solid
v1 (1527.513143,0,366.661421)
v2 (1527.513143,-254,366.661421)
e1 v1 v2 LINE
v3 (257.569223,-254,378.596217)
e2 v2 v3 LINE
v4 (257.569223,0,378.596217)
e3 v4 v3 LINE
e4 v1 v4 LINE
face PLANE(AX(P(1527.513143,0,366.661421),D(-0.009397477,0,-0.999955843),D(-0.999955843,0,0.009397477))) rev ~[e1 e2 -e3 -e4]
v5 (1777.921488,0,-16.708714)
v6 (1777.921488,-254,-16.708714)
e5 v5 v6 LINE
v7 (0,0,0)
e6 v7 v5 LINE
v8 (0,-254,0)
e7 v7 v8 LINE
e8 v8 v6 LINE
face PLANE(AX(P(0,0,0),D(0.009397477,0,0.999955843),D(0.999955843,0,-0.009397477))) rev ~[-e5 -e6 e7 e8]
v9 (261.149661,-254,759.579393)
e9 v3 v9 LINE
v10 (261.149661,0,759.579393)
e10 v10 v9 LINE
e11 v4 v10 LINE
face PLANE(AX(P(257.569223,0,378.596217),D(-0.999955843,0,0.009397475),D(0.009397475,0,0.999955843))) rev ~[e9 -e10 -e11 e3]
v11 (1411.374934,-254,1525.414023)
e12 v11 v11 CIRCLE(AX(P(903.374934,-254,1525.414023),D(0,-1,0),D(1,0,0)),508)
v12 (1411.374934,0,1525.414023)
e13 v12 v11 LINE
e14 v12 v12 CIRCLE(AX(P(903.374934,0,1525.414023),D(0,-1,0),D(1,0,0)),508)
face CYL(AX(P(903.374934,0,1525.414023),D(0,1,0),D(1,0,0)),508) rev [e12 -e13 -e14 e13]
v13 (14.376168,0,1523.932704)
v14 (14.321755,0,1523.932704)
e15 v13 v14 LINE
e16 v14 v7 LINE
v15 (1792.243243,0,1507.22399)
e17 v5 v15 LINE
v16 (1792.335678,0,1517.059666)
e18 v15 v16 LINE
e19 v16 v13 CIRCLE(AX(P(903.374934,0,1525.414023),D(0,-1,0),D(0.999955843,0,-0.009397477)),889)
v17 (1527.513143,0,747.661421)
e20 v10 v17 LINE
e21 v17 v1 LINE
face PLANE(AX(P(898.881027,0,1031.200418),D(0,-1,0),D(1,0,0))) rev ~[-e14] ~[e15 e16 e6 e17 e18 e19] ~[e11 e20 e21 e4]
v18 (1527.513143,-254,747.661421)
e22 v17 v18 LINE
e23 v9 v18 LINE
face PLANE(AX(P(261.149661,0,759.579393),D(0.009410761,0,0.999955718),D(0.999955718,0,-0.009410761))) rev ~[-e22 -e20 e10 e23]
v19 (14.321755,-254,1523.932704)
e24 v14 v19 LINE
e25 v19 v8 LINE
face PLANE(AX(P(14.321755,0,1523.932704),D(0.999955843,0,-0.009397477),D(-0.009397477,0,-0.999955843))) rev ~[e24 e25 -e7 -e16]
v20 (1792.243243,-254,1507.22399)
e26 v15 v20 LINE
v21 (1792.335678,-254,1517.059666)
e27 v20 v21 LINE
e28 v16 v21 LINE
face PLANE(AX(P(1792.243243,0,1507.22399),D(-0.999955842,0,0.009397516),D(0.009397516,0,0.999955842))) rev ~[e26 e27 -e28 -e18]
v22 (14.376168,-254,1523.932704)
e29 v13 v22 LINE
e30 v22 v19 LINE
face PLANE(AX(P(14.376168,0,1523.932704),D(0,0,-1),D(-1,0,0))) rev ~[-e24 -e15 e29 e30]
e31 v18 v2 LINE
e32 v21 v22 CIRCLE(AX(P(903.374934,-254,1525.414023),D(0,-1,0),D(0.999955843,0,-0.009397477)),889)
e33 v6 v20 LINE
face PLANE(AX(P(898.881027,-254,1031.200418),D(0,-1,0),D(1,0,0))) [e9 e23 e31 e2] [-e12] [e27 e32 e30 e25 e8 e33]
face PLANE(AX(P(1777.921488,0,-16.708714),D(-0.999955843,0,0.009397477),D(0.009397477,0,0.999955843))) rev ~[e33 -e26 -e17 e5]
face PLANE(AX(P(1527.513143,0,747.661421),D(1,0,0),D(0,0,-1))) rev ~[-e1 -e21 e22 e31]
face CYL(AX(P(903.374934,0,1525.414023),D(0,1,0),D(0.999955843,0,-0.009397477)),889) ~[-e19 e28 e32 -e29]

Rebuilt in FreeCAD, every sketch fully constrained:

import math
import FreeCAD as App
import Part
import Sketcher
from FreeCAD import Vector
Q = App.Units.Quantity


def add_polygon(sketch, points):
    """Adds a closed chain of lines whose ends are joined by coincident constraints."""
    first, n = sketch.GeometryCount, len(points)
    for a, b in zip(points, points[1:] + points[:1]):
        sketch.addGeometry(Part.LineSegment(App.Vector(*a, 0), App.Vector(*b, 0)), False)
    for i in range(n):
        sketch.addConstraint(Sketcher.Constraint("Coincident", first + i, 2, first + (i + 1) % n, 1))

doc = App.newDocument("Part")
body = doc.addObject("PartDesign::Body", "Body")

# Sketch on XZ plane
sketch1 = body.newObject("Sketcher::SketchObject", "Sketch")
sketch1.AttachmentSupport = (doc.getObject("XZ_Plane"), [""])
sketch1.MapMode = "FlatFace"
sketch1.addGeometry(Part.LineSegment(Vector(14.321755, 1523.932704, 0), Vector(0, 0, 0)), False)  # 0
sketch1.addGeometry(Part.LineSegment(Vector(0, 0, 0), Vector(1777.921488, -16.708714, 0)), False)  # 1
sketch1.addGeometry(Part.LineSegment(Vector(1777.921488, -16.708714, 0), Vector(1792.243243, 1507.22399, 0)), False)  # 2
sketch1.addGeometry(Part.LineSegment(Vector(1792.243243, 1507.22399, 0), Vector(1792.335678, 1517.059666, 0)), False)  # 3
sketch1.addGeometry(Part.ArcOfCircle(Part.Circle(Vector(903.374934, 1525.414023, 0), Vector(0, 0, 1), 889), math.radians(-0.538444), math.radians(180.095471)), False)  # 4
sketch1.addGeometry(Part.LineSegment(Vector(14.376168, 1523.932704, 0), Vector(14.321755, 1523.932704, 0)), False)  # 5
add_polygon(sketch1, [(1527.513143, 366.661421), (257.569223, 378.596217), (261.149661, 759.579393), (1527.513143, 747.661421)])  # lines 6-9
sketch1.addGeometry(Part.Circle(Vector(903.374934, 1525.414023, 0), Vector(0, 0, 1), 508), False)  # 10
sketch1.addConstraint([
    Sketcher.Constraint("Coincident", 0, 2, 1, 1),
    Sketcher.Constraint("Coincident", 1, 2, 2, 1),
    Sketcher.Constraint("Coincident", 2, 2, 3, 1),
    Sketcher.Constraint("Tangent", 3, 2, 4, 1),
    Sketcher.Constraint("Coincident", 4, 2, 5, 1),
    Sketcher.Constraint("Coincident", 5, 2, 0, 1),
    Sketcher.Constraint("Horizontal", 5),
    Sketcher.Constraint("Vertical", 9),
    Sketcher.Constraint("Coincident", 0, 2, -1, 1),
    Sketcher.Constraint("Coincident", 10, 3, 4, 3),
    Sketcher.Constraint("Perpendicular", 0, 1),
    Sketcher.Constraint("Perpendicular", 1, 2),
    Sketcher.Constraint("Parallel", 2, 3),
    Sketcher.Constraint("Perpendicular", 3, 6),
    Sketcher.Constraint("Perpendicular", 6, 7),
    Sketcher.Constraint("Equal", 0, 2),
    Sketcher.Constraint("Diameter", 10, Q("40 in")),
    Sketcher.Constraint("Radius", 4, Q("35 in")),
    Sketcher.Constraint("DistanceY", 9, 2, 9, 1, Q("15 in")),
    Sketcher.Constraint("Distance", 0, Q("60 in")),
    Sketcher.Constraint("Distance", 1, Q("70 in")),
    Sketcher.Constraint("Distance", 6, Q("50 in")),
    Sketcher.Constraint("Distance", 7, Q("15 in")),
    Sketcher.Constraint("DistanceX", 8, 2, 2, 2, 264.7301),
    Sketcher.Constraint("DistanceY", 8, 2, 10, 3, 777.752602),
    Sketcher.Constraint("Distance", 3, 9.83611),
    Sketcher.Constraint("Distance", 8, 1266.419562),
])
pad1 = body.newObject("PartDesign::Pad", "Pad")
pad1.Profile = sketch1
pad1.Length = Q("10 in")

doc.recompute()
